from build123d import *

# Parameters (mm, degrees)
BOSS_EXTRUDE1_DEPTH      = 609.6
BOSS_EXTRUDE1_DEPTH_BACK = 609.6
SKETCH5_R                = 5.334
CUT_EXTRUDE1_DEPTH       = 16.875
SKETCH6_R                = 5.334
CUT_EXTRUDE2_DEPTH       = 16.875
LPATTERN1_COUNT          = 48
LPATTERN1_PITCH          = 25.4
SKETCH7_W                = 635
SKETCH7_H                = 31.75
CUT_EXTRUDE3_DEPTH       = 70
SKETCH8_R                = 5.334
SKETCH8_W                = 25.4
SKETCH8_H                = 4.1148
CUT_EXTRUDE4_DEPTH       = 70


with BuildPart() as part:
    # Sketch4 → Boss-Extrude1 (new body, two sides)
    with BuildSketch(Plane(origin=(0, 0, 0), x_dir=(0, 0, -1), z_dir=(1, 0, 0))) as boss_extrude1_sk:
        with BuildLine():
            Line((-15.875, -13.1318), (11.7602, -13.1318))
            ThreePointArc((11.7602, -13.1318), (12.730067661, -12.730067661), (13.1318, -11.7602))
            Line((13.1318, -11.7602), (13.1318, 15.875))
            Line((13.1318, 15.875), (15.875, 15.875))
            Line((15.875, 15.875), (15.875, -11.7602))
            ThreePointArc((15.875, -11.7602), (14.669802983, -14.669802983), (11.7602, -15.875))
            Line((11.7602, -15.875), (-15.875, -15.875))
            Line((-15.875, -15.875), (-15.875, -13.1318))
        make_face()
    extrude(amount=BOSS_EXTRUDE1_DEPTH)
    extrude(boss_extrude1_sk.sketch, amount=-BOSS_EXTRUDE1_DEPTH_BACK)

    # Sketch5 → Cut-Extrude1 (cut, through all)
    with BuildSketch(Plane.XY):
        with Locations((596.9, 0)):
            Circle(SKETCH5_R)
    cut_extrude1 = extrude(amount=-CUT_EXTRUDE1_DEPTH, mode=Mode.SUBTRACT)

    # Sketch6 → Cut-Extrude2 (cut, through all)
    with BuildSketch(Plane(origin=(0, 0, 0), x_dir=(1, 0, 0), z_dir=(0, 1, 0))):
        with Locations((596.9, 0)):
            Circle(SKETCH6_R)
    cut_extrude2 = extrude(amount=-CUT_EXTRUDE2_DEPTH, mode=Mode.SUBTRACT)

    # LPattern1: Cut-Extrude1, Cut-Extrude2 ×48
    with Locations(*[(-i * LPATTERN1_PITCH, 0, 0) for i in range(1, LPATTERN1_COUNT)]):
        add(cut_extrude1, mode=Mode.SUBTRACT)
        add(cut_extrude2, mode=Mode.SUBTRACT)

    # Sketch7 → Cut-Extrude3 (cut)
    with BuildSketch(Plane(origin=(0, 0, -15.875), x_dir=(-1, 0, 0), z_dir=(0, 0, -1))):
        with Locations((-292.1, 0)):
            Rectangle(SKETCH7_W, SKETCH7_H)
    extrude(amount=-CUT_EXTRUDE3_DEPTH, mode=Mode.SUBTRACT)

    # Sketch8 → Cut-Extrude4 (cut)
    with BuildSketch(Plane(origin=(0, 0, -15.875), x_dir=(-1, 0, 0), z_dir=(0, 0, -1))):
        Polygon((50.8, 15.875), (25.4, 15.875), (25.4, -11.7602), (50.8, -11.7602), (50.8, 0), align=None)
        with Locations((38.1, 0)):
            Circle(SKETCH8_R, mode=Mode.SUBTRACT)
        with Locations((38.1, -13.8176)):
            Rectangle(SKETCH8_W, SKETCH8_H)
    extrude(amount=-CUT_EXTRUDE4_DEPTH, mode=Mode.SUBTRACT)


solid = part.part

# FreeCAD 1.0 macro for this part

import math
import FreeCAD as App
import Part
import Sketcher

V = App.Vector
Q = App.Units.Quantity

doc = App.newDocument("Part")
body = doc.addObject("PartDesign::Body", "Body")

# Sketch on YZ plane
sketch1 = body.newObject("Sketcher::SketchObject", "Sketch")
sketch1.AttachmentSupport = (doc.getObject("YZ_Plane"), [""])
sketch1.MapMode = "FlatFace"
sketch1.addGeometry(Part.LineSegment(V(-13.1, -11.8, 0), V(-13.1, 15.9, 0)), False)
sketch1.addGeometry(Part.LineSegment(V(-13.1, 15.9, 0), V(-15.9, 15.9, 0)), False)
sketch1.addGeometry(Part.LineSegment(V(-15.9, 15.9, 0), V(-15.9, -11.8, 0)), False)
sketch1.addGeometry(Part.ArcOfCircle(Part.Circle(V(-11.8, -11.8, 0), V(0, 0, 1), 4.1), math.radians(-180), math.radians(-90)), False)
sketch1.addGeometry(Part.LineSegment(V(-11.8, -15.9, 0), V(15.9, -15.9, 0)), False)
sketch1.addGeometry(Part.LineSegment(V(15.9, -15.9, 0), V(15.9, -13.1, 0)), False)
sketch1.addGeometry(Part.LineSegment(V(15.9, -13.1, 0), V(-11.8, -13.1, 0)), False)
sketch1.addGeometry(Part.ArcOfCircle(Part.Circle(V(-11.8, -11.8, 0), V(0, 0, 1), 1.4), math.radians(180), math.radians(270)), False)
sketch1.addConstraint(Sketcher.Constraint("Coincident", 0, 2, 1, 1))
sketch1.addConstraint(Sketcher.Constraint("Coincident", 1, 2, 2, 1))
sketch1.addConstraint(Sketcher.Constraint("Tangent", 2, 2, 3, 1))
sketch1.addConstraint(Sketcher.Constraint("Tangent", 3, 2, 4, 1))
sketch1.addConstraint(Sketcher.Constraint("Coincident", 4, 2, 5, 1))
sketch1.addConstraint(Sketcher.Constraint("Coincident", 5, 2, 6, 1))
sketch1.addConstraint(Sketcher.Constraint("Tangent", 6, 2, 7, 2))
sketch1.addConstraint(Sketcher.Constraint("Tangent", 7, 1, 0, 1))
sketch1.addConstraint(Sketcher.Constraint("Vertical", 0))
sketch1.addConstraint(Sketcher.Constraint("Horizontal", 1))
sketch1.addConstraint(Sketcher.Constraint("Vertical", 2))
sketch1.addConstraint(Sketcher.Constraint("Horizontal", 4))
sketch1.addConstraint(Sketcher.Constraint("Vertical", 5))
sketch1.addConstraint(Sketcher.Constraint("Horizontal", 6))
sketch1.addConstraint(Sketcher.Constraint("Coincident", 7, 3, 3, 3))
sketch1.addConstraint(Sketcher.Constraint("Symmetric", 1, 2, 4, 2, -1, 1))
sketch1.addConstraint(Sketcher.Constraint("Equal", 6, 0))
sketch1.addConstraint(Sketcher.Constraint("Radius", 3, Q("0.162 in")))
sketch1.addConstraint(Sketcher.Constraint("Radius", 7, Q("0.054 in")))
sketch1.addConstraint(Sketcher.Constraint("DistanceX", 4, 1, 4, 2, Q("1.088 in")))
pad1 = body.newObject("PartDesign::Pad", "Pad")
pad1.Profile = sketch1
pad1.Type = "TwoLengths"
pad1.Length = Q("24 in")
pad1.Length2 = Q("24 in")

# Sketch on XY plane
sketch2 = body.newObject("Sketcher::SketchObject", "Sketch001")
sketch2.AttachmentSupport = (doc.getObject("XY_Plane"), [""])
sketch2.MapMode = "FlatFace"
sketch2.addGeometry(Part.Circle(V(597, 0, 0), V(0, 0, 1), 5), False)
sketch2.addConstraint(Sketcher.Constraint("PointOnObject", 0, 3, -1))
sketch2.addConstraint(Sketcher.Constraint("Diameter", 0, Q("0.42 in")))
sketch2.addConstraint(Sketcher.Constraint("DistanceX", -1, 1, 0, 3, Q("23.5 in")))
pocket1 = body.newObject("PartDesign::Pocket", "Pocket")
pocket1.Profile = sketch2
pocket1.Type = "ThroughAll"

# Sketch on XZ plane
sketch3 = body.newObject("Sketcher::SketchObject", "Sketch002")
sketch3.AttachmentSupport = (doc.getObject("XZ_Plane"), [""])
sketch3.MapMode = "FlatFace"
sketch3.addGeometry(Part.Circle(V(597, 0, 0), V(0, 0, 1), 5), False)
sketch3.addConstraint(Sketcher.Constraint("PointOnObject", 0, 3, -1))
sketch3.addConstraint(Sketcher.Constraint("Diameter", 0, Q("0.42 in")))
sketch3.addConstraint(Sketcher.Constraint("DistanceX", -1, 1, 0, 3, Q("23.5 in")))
pocket2 = body.newObject("PartDesign::Pocket", "Pocket001")
pocket2.Profile = sketch3
pocket2.Type = "ThroughAll"
pocket2.Reversed = True
doc.recompute()

linearpattern = body.newObject("PartDesign::LinearPattern", "LinearPattern")
linearpattern.Originals = [pocket1, pocket2]
linearpattern.Direction = (doc.getObject("X_Axis"), [""])
linearpattern.Mode = "offset"
linearpattern.Offset = Q("1 in")
linearpattern.Occurrences = 48
linearpattern.Reversed = True
body.Tip = linearpattern

# Sketch on XY plane
sketch4 = body.newObject("Sketcher::SketchObject", "Sketch003")
sketch4.AttachmentSupport = (doc.getObject("XY_Plane"), [""])
sketch4.MapMode = "FlatFace"
sketch4.AttachmentOffset = App.Placement(V(0, 0, -0.625 * 25.4), App.Rotation())
sketch4.addGeometry(Part.LineSegment(V(610, 16, 0), V(610, -16, 0)), False)
sketch4.addGeometry(Part.LineSegment(V(610, -16, 0), V(-25, -16, 0)), False)
sketch4.addGeometry(Part.LineSegment(V(-25, -16, 0), V(-25, 16, 0)), False)
sketch4.addGeometry(Part.LineSegment(V(-25, 16, 0), V(610, 16, 0)), False)
sketch4.addConstraint(Sketcher.Constraint("Coincident", 0, 2, 1, 1))
sketch4.addConstraint(Sketcher.Constraint("Coincident", 1, 2, 2, 1))
sketch4.addConstraint(Sketcher.Constraint("Coincident", 2, 2, 3, 1))
sketch4.addConstraint(Sketcher.Constraint("Coincident", 3, 2, 0, 1))
sketch4.addConstraint(Sketcher.Constraint("Vertical", 0))
sketch4.addConstraint(Sketcher.Constraint("Horizontal", 1))
sketch4.addConstraint(Sketcher.Constraint("Vertical", 2))
sketch4.addConstraint(Sketcher.Constraint("Horizontal", 3))
sketch4.addConstraint(Sketcher.Constraint("DistanceX", 1, 2, 1, 1, Q("25 in")))
sketch4.addConstraint(Sketcher.Constraint("DistanceX", -1, 1, 0, 2, Q("24 in")))
sketch4.addConstraint(Sketcher.Constraint("DistanceY", 0, 2, 0, 1, Q("1.25 in")))
sketch4.addConstraint(Sketcher.Constraint("DistanceY", 0, 2, -1, 1, Q("0.625 in")))
pocket3 = body.newObject("PartDesign::Pocket", "Pocket002")
pocket3.Profile = sketch4
pocket3.Length = 70
pocket3.Reversed = True

# Sketch on XY plane
sketch5 = body.newObject("Sketcher::SketchObject", "Sketch004")
sketch5.AttachmentSupport = (doc.getObject("XY_Plane"), [""])
sketch5.MapMode = "FlatFace"
sketch5.AttachmentOffset = App.Placement(V(0, 0, -0.625 * 25.4), App.Rotation())
sketch5.addGeometry(Part.LineSegment(V(-51, 16, 0), V(-25, 16, 0)), False)
sketch5.addGeometry(Part.LineSegment(V(-25, 16, 0), V(-25, -16, 0)), False)
sketch5.addGeometry(Part.LineSegment(V(-25, -16, 0), V(-51, -16, 0)), False)
sketch5.addGeometry(Part.LineSegment(V(-51, -16, 0), V(-51, 16, 0)), False)
sketch5.addGeometry(Part.Circle(V(-38, 0, 0), V(0, 0, 1), 5), False)
sketch5.addConstraint(Sketcher.Constraint("Coincident", 0, 2, 1, 1))
sketch5.addConstraint(Sketcher.Constraint("Coincident", 1, 2, 2, 1))
sketch5.addConstraint(Sketcher.Constraint("Coincident", 2, 2, 3, 1))
sketch5.addConstraint(Sketcher.Constraint("Coincident", 3, 2, 0, 1))
sketch5.addConstraint(Sketcher.Constraint("Horizontal", 0))
sketch5.addConstraint(Sketcher.Constraint("Vertical", 1))
sketch5.addConstraint(Sketcher.Constraint("Horizontal", 2))
sketch5.addConstraint(Sketcher.Constraint("Vertical", 3))
sketch5.addConstraint(Sketcher.Constraint("PointOnObject", 4, 3, -1))
sketch5.addConstraint(Sketcher.Constraint("Diameter", 4, Q("0.42 in")))
sketch5.addConstraint(Sketcher.Constraint("DistanceX", 0, 1, 0, 2, Q("1 in")))
sketch5.addConstraint(Sketcher.Constraint("DistanceX", 0, 2, -1, 1, Q("1 in")))
sketch5.addConstraint(Sketcher.Constraint("DistanceY", 1, 2, 1, 1, Q("1.25 in")))
sketch5.addConstraint(Sketcher.Constraint("DistanceX", 4, 3, -1, 1, Q("1.5 in")))
sketch5.addConstraint(Sketcher.Constraint("DistanceY", -1, 1, 0, 2, Q("0.625 in")))
pocket4 = body.newObject("PartDesign::Pocket", "Pocket003")
pocket4.Profile = sketch5
pocket4.Length = 70
pocket4.Reversed = True

doc.recompute()
